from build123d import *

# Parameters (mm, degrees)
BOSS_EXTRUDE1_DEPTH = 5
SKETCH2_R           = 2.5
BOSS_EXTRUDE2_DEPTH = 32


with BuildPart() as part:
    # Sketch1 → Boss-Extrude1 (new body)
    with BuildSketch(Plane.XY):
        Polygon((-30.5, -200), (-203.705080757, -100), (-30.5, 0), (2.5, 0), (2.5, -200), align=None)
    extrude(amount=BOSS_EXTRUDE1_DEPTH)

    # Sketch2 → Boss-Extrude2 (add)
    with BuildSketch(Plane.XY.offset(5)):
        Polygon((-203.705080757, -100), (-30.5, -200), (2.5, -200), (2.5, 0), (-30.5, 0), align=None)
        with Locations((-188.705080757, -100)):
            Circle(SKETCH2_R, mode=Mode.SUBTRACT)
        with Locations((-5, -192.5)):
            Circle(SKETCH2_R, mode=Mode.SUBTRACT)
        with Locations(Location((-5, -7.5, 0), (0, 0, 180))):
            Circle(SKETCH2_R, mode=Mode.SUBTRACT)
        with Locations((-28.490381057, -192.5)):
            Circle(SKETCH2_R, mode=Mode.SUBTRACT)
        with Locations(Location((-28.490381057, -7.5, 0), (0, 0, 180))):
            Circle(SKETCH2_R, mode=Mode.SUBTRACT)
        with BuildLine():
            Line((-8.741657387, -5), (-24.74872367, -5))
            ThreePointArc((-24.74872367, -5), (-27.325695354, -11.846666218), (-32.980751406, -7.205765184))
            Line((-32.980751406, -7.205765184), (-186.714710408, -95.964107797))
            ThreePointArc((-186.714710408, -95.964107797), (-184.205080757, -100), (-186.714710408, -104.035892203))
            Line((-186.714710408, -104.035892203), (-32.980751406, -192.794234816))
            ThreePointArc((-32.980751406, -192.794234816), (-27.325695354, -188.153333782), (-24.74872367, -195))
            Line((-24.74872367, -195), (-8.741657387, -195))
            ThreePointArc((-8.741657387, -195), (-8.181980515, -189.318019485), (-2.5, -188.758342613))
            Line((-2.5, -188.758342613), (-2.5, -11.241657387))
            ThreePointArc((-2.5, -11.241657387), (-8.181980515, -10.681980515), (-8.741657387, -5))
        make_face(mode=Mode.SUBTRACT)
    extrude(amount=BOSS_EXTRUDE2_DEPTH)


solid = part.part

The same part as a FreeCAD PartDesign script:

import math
import FreeCAD as App
import Part
import Sketcher

V = App.Vector
Q = App.Units.Quantity


def add_polygon(sketch, points):
    """Adds a closed chain of lines whose ends are joined by coincident constraints."""
    first, n = sketch.GeometryCount, len(points)
    for a, b in zip(points, points[1:] + points[:1]):
        sketch.addGeometry(Part.LineSegment(App.Vector(*a, 0), App.Vector(*b, 0)), False)
    for i in range(n):
        sketch.addConstraint(Sketcher.Constraint("Coincident", first + i, 2, first + (i + 1) % n, 1))

doc = App.newDocument("Part")
body = doc.addObject("PartDesign::Body", "Body")

# Sketch on XY plane
sketch1 = body.newObject("Sketcher::SketchObject", "Sketch")
sketch1.AttachmentSupport = (doc.getObject("XY_Plane"), [""])
sketch1.MapMode = "FlatFace"
add_polygon(sketch1, [(-203.705081, -100), (-30.5, -200), (2.5, -200), (2.5, 0), (-30.5, 0)])  # lines 0-4
sketch1.addConstraint([
    Sketcher.Constraint("Horizontal", 1),
    Sketcher.Constraint("Vertical", 2),
    Sketcher.Constraint("Horizontal", 3),
    Sketcher.Constraint("PointOnObject", 2, 2, -1),
    Sketcher.Constraint("Vertical", 0, 2, 3, 2),
    Sketcher.Constraint("Equal", 0, 4),
    Sketcher.Constraint("DistanceX", 1, 1, 1, 2, Q("33 mm")),
    Sketcher.Constraint("DistanceY", 2, 1, 2, 2, Q("200 mm")),
    Sketcher.Constraint("Angle", 0, Q("-30 deg")),
    Sketcher.Constraint("DistanceX", 0, 2, -1, 1, Q("30.5 mm")),
])
pad1 = body.newObject("PartDesign::Pad", "Pad")
pad1.Profile = sketch1
pad1.Length = 5

# Sketch on XY plane
sketch2 = body.newObject("Sketcher::SketchObject", "Sketch001")
sketch2.AttachmentSupport = (doc.getObject("XY_Plane"), [""])
sketch2.MapMode = "FlatFace"
sketch2.AttachmentOffset = App.Placement(V(0, 0, 5), App.Rotation())
add_polygon(sketch2, [(-203.705081, -100), (-30.5, -200), (2.5, -200), (2.5, 0), (-30.5, 0)])  # lines 0-4
sketch2.addGeometry(Part.Circle(V(-28.490381, -192.5, 0), V(0, 0, 1), 2.5), False)  # 5
sketch2.addGeometry(Part.Circle(V(-5, -192.5, 0), V(0, 0, 1), 2.5), False)  # 6
sketch2.addGeometry(Part.Circle(V(-188.705081, -100, 0), V(0, 0, 1), 2.5), False)  # 7
sketch2.addGeometry(Part.LineSegment(V(-24.748724, -5, 0), V(-8.741657, -5, 0)), False)  # 8
sketch2.addGeometry(Part.ArcOfCircle(Part.Circle(V(-5, -7.5, 0), V(0, 0, 1), 4.5), math.radians(146.251011), math.radians(303.748989)), False)  # 9
sketch2.addGeometry(Part.LineSegment(V(-2.5, -11.241657, 0), V(-2.5, -188.758343, 0)), False)  # 10
sketch2.addGeometry(Part.ArcOfCircle(Part.Circle(V(-5, -192.5, 0), V(0, 0, 1), 4.5), math.radians(56.251011), math.radians(213.748989)), False)  # 11
sketch2.addGeometry(Part.LineSegment(V(-8.741657, -195, 0), V(-24.748724, -195, 0)), False)  # 12
sketch2.addGeometry(Part.ArcOfCircle(Part.Circle(V(-28.490381, -192.5, 0), V(0, 0, 1), 4.5), math.radians(-33.748989), math.radians(183.748989)), False)  # 13
sketch2.addGeometry(Part.LineSegment(V(-32.980751, -192.794235, 0), V(-186.71471, -104.035892, 0)), False)  # 14
sketch2.addGeometry(Part.ArcOfCircle(Part.Circle(V(-188.705081, -100, 0), V(0, 0, 1), 4.5), math.radians(-63.748989), math.radians(63.748989)), False)  # 15
sketch2.addGeometry(Part.LineSegment(V(-186.71471, -95.964108, 0), V(-32.980751, -7.205765, 0)), False)  # 16
sketch2.addGeometry(Part.ArcOfCircle(Part.Circle(V(-28.490381, -7.5, 0), V(0, 0, 1), 4.5), math.radians(176.251011), math.radians(393.748989)), False)  # 17
sketch2.addGeometry(Part.Circle(V(-28.490381, -7.5, 0), V(0, 0, 1), 2.5), False)  # 18
sketch2.addGeometry(Part.Circle(V(-5, -7.5, 0), V(0, 0, 1), 2.5), False)  # 19
sketch2.addConstraint([
    Sketcher.Constraint("Coincident", 8, 2, 9, 1),
    Sketcher.Constraint("Coincident", 9, 2, 10, 1),
    Sketcher.Constraint("Coincident", 10, 2, 11, 1),
    Sketcher.Constraint("Coincident", 11, 2, 12, 1),
    Sketcher.Constraint("Coincident", 12, 2, 13, 1),
    Sketcher.Constraint("Coincident", 13, 2, 14, 1),
    Sketcher.Constraint("Coincident", 14, 2, 15, 1),
    Sketcher.Constraint("Coincident", 15, 2, 16, 1),
    Sketcher.Constraint("Coincident", 16, 2, 17, 1),
    Sketcher.Constraint("Coincident", 17, 2, 8, 1),
    Sketcher.Constraint("Horizontal", 1),
    Sketcher.Constraint("Vertical", 2),
    Sketcher.Constraint("Horizontal", 3),
    Sketcher.Constraint("Horizontal", 8),
    Sketcher.Constraint("Vertical", 10),
    Sketcher.Constraint("Horizontal", 12),
    Sketcher.Constraint("Coincident", 11, 3, 6, 3),
    Sketcher.Constraint("Coincident", 13, 3, 5, 3),
    Sketcher.Constraint("Coincident", 15, 3, 7, 3),
    Sketcher.Constraint("Coincident", 18, 3, 17, 3),
    Sketcher.Constraint("Coincident", 19, 3, 9, 3),
    Sketcher.Constraint("Equal", 5, 6),
    Sketcher.Constraint("Equal", 6, 7),
    Sketcher.Constraint("Equal", 9, 11),
    Sketcher.Constraint("Equal", 11, 13),
    Sketcher.Constraint("Equal", 13, 15),
    Sketcher.Constraint("Equal", 15, 17),
    Sketcher.Constraint("Equal", 7, 18),
    Sketcher.Constraint("Equal", 18, 19),
    Sketcher.Constraint("PointOnObject", 2, 2, -1),
    Sketcher.Constraint("Parallel", 0, 14),
    Sketcher.Constraint("Parallel", 4, 16),
    Sketcher.Constraint("Horizontal", 5, 3, 6, 3),
    Sketcher.Constraint("Horizontal", 9, 3, 17, 3),
    Sketcher.Constraint("Horizontal", 15, 3, 4, 2),
    Sketcher.Constraint("Vertical", 6, 3, 9, 3),
    Sketcher.Constraint("Vertical", 13, 3, 17, 3),
    Sketcher.Constraint("Vertical", 0, 2, 3, 2),
    Sketcher.Constraint("Vertical", 8, 2, 11, 2),
    Sketcher.Constraint("Vertical", 14, 2, 15, 2),
    Sketcher.Constraint("Vertical", 13, 2, 16, 2),
    Sketcher.Constraint("Equal", 0, 4),
    Sketcher.Constraint("Diameter", 5, Q("5 mm")),
    Sketcher.Constraint("Radius", 9, Q("4.5 mm")),
    Sketcher.Constraint("DistanceX", 1, 1, 1, 2, Q("33 mm")),
    Sketcher.Constraint("DistanceY", 2, 1, 2, 2, Q("200 mm")),
    Sketcher.Constraint("Angle", 0, Q("-30 deg")),
    Sketcher.Constraint("DistanceX", 6, 3, -1, 1, Q("5 mm")),
    Sketcher.Constraint("DistanceY", 8, 2, -1, 1, Q("5 mm")),
    Sketcher.Constraint("DistanceY", 6, 3, 9, 3, Q("185 mm")),
    Sketcher.Constraint("DistanceX", 4, 2, 7, 3, Q("15 mm")),
    Sketcher.Constraint("DistanceX", 9, 2, 2, 2, Q("5 mm")),
    Sketcher.Constraint("DistanceX", 0, 2, -1, 1, Q("30.5 mm")),
    Sketcher.Constraint("DistanceX", 7, 3, 5, 3, Q("160.2147 mm")),
    Sketcher.Constraint("DistanceX", 13, 2, -1, 1, Q("32.980751 mm")),
])
pad2 = body.newObject("PartDesign::Pad", "Pad001")
pad2.Profile = sketch2
pad2.Length = 32

doc.recompute()
